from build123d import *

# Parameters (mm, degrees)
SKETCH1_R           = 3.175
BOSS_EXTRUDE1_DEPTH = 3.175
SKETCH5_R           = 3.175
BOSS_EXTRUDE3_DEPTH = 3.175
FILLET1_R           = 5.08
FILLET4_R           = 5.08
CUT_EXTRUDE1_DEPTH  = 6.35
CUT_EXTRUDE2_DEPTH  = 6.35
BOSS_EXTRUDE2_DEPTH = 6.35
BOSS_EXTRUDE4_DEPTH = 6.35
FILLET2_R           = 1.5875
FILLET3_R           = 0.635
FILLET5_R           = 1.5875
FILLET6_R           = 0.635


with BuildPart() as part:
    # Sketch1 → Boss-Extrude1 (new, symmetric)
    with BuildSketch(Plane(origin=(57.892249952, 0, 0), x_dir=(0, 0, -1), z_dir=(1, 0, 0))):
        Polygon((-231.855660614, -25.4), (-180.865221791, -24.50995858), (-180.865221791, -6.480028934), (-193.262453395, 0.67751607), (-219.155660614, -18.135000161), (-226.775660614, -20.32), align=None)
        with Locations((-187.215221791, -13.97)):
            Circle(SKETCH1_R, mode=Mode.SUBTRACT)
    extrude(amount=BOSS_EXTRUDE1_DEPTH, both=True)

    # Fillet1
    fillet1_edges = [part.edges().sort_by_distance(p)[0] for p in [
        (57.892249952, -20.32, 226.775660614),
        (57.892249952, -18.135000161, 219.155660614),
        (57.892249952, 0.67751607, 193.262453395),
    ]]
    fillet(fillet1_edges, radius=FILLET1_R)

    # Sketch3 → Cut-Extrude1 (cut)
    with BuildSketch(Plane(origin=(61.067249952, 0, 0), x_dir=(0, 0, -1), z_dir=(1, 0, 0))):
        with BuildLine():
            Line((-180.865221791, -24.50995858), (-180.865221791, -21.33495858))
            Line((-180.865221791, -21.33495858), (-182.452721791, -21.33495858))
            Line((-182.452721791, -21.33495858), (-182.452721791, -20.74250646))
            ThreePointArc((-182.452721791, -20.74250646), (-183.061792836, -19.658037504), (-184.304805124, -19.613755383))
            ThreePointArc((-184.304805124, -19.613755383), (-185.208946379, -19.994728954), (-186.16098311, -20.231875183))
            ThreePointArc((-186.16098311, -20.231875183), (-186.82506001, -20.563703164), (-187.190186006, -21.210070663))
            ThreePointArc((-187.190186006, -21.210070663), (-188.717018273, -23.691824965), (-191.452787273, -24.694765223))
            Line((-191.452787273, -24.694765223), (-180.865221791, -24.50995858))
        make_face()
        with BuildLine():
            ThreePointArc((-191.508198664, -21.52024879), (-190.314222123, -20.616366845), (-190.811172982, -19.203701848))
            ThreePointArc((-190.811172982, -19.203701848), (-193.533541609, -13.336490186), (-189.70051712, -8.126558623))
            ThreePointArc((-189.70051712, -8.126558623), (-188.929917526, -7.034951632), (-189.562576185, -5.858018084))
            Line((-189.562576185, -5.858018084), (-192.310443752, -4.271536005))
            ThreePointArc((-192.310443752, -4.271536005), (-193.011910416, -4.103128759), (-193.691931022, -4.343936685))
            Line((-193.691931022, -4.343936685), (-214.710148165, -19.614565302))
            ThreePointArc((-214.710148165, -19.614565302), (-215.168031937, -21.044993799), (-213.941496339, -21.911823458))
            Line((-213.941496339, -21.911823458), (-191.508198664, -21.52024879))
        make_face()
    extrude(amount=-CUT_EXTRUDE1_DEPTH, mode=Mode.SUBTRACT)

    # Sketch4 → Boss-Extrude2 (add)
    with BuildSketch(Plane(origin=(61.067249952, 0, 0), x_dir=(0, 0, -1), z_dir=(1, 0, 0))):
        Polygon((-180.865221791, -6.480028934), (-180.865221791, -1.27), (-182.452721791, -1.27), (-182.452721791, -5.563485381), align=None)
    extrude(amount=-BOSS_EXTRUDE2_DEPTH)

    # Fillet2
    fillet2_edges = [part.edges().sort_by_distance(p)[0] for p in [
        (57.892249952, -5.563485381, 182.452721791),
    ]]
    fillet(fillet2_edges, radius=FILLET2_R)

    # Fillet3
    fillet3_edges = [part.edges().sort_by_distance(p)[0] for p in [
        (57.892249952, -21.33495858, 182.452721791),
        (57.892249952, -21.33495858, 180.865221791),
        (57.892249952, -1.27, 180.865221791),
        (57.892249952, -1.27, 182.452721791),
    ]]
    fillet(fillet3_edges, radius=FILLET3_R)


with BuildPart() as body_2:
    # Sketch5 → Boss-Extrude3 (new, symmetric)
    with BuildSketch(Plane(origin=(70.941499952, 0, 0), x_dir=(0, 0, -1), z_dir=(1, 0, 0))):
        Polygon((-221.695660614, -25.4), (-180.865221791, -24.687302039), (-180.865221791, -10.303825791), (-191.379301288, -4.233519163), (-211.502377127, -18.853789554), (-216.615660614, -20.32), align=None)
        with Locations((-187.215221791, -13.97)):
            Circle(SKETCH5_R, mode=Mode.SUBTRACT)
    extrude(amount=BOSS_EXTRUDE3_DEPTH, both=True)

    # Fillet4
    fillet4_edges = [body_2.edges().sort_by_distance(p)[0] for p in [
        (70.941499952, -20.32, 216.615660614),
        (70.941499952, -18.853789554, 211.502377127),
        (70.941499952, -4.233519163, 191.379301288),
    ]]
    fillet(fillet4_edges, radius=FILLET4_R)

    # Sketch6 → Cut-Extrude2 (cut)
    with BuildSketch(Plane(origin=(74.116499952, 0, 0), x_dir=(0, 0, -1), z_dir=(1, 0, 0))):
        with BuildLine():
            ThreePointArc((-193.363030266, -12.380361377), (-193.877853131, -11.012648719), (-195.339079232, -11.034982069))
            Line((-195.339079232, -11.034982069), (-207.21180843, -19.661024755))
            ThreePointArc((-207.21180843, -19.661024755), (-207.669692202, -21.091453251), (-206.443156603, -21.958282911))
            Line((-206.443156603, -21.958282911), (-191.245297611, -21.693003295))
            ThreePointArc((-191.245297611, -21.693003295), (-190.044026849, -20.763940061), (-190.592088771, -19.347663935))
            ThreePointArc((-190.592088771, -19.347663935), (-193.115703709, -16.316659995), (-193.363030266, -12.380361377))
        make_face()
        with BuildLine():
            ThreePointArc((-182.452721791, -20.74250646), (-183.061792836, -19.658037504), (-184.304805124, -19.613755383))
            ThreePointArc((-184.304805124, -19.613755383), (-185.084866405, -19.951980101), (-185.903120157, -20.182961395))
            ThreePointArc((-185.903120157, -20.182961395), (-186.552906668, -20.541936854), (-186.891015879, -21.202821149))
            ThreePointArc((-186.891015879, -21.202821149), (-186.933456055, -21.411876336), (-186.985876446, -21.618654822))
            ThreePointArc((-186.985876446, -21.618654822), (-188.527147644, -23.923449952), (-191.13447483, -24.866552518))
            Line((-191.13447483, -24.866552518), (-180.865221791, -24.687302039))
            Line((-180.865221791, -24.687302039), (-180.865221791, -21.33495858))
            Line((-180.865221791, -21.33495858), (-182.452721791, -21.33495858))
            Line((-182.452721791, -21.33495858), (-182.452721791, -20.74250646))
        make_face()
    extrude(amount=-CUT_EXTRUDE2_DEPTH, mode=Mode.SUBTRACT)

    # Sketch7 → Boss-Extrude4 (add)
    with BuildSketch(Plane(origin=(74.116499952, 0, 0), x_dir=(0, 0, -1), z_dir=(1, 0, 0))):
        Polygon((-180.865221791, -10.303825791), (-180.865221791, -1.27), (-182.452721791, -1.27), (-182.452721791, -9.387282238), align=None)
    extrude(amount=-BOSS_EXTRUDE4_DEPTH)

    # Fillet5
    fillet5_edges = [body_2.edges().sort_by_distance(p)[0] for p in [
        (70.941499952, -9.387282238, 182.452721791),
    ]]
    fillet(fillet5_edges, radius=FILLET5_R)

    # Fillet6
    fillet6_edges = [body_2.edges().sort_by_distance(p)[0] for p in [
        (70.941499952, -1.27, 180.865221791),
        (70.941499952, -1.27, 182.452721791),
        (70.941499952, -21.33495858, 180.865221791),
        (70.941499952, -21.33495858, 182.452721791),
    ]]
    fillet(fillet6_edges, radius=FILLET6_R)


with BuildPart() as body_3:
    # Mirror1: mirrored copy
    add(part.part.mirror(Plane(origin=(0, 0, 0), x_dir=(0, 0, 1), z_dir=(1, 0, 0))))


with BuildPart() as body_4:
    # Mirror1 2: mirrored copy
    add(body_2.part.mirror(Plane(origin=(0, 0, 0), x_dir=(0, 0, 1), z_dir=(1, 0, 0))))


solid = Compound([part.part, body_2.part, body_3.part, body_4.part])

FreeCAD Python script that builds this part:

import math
import FreeCAD as App
import Part
import Sketcher
Q = App.Units.Quantity


def edges_at(feature, points):
    """Names of the edges that pass closest to the given points."""
    edges = feature.Shape.Edges
    near = lambda p: min(range(len(edges)), key=lambda i: edges[i].distToShape(Part.Vertex(*p))[0])
    return sorted({f"Edge{near(p) + 1}" for p in points})


def add_polygon(sketch, points):
    """Adds a closed chain of lines whose ends are joined by coincident constraints."""
    first, n = sketch.GeometryCount, len(points)
    for a, b in zip(points, points[1:] + points[:1]):
        sketch.addGeometry(Part.LineSegment(App.Vector(*a, 0), App.Vector(*b, 0)), False)
    for i in range(n):
        sketch.addConstraint(Sketcher.Constraint("Coincident", first + i, 2, first + (i + 1) % n, 1))

doc = App.newDocument("Part")
body = doc.addObject("PartDesign::Body", "Body")

# Sketch on YZ plane
sketch1 = body.newObject("Sketcher::SketchObject", "Sketch")
sketch1.AttachmentSupport = (doc.getObject("YZ_Plane"), [""])
sketch1.MapMode = "FlatFace"
sketch1.AttachmentOffset = App.Placement(App.Vector(0, 0, 57.89225), App.Rotation())
add_polygon(sketch1, [(-25.4, 231.9), (-24.5, 180.9), (-6.5, 180.9), (0.7, 193.3), (-18.1, 219.2), (-20.3, 226.8)])  # lines 0-5
sketch1.addGeometry(Part.Circle(App.Vector(-14, 187.2, 0), App.Vector(0, 0, 1), 3.2), False)  # 6
sketch1.addConstraint([
    Sketcher.Constraint("Horizontal", 1),
    Sketcher.Constraint("Diameter", 6, Q("0.25 in")),
    Sketcher.Constraint("DistanceX", 5, 2, -1, 1, Q("1 in")),
    Sketcher.Constraint("Angle", 0, Q("-89 deg")),
    Sketcher.Constraint("Angle", 2, Q("60 deg")),
    Sketcher.Constraint("Angle", 3, Q("126 deg")),
    Sketcher.Constraint("Angle", 4, Q("106 deg")),
    Sketcher.Constraint("Angle", 5, Q("135 deg")),
    Sketcher.Constraint("DistanceX", 4, 2, -1, 1, Q("0.8 in")),
    Sketcher.Constraint("DistanceY", 3, 2, 4, 2, Q("0.3 in")),
    Sketcher.Constraint("DistanceX", 6, 3, -1, 1, Q("0.55 in")),
    Sketcher.Constraint("DistanceY", 0, 2, 6, 3, Q("0.25 in")),
    Sketcher.Constraint("DistanceX", 1, 1, 1, 2, 18.02993),
    Sketcher.Constraint("Distance", 2, 14.31509),
    Sketcher.Constraint("DistanceY", -1, 1, 6, 3, 187.215222),
])
pad1 = body.newObject("PartDesign::Pad", "Pad")
pad1.Profile = sketch1
pad1.Length = Q("0.25 in")
pad1.Midplane = True
doc.recompute()

fillet = body.newObject("PartDesign::Fillet", "Fillet")
fillet.Base = (pad1, edges_at(pad1, [(57.892, -20.32, 226.776), (57.892, -18.135, 219.156), (57.892, 0.678, 193.262)]))
fillet.Radius = Q("0.2 in")

# Sketch on YZ plane
sketch2 = body.newObject("Sketcher::SketchObject", "Sketch001")
sketch2.AttachmentSupport = (doc.getObject("YZ_Plane"), [""])
sketch2.MapMode = "FlatFace"
sketch2.AttachmentOffset = App.Placement(App.Vector(0, 0, 61.06725), App.Rotation())
sketch2.addGeometry([
    Part.LineSegment(App.Vector(-24.5, 180.9, 0), App.Vector(-21.3, 180.9, 0)),  # 0
    Part.LineSegment(App.Vector(-21.3, 180.9, 0), App.Vector(-21.3, 182.5, 0)),  # 1
    Part.LineSegment(App.Vector(-21.3, 182.5, 0), App.Vector(-20.7, 182.5, 0)),  # 2
    Part.ArcOfCircle(Part.Circle(App.Vector(-20.7, 183.7, 0), App.Vector(0, 0, 1), 1.3), math.radians(-90), math.radians(27)),  # 3
    Part.ArcOfCircle(Part.Circle(App.Vector(-14, 187.2, 0), App.Vector(0, 0, 1), 6.4), math.radians(-170.44), math.radians(-152.72)),  # 4
    Part.ArcOfCircle(Part.Circle(App.Vector(-21.5, 186, 0), App.Vector(0, 0, 1), 1.3), math.radians(10), math.radians(78)),  # 5
    Part.ArcOfCircle(Part.Circle(App.Vector(-20.3, 191.5, 0), App.Vector(0, 0, 1), 4.4), math.radians(-179), math.radians(-102)),  # 6
    Part.LineSegment(App.Vector(-24.7, 191.5, 0), App.Vector(-24.5, 180.9, 0)),  # 7
    Part.ArcOfCircle(Part.Circle(App.Vector(-20.3, 191.5, 0), App.Vector(0, 0, 1), 1.3), math.radians(-179), math.radians(-34)),  # 8
    Part.ArcOfCircle(Part.Circle(App.Vector(-14, 187.2, 0), App.Vector(0, 0, 1), 6.3), math.radians(23), math.radians(146)),  # 9
    Part.ArcOfCircle(Part.Circle(App.Vector(-7, 190.2, 0), App.Vector(0, 0, 1), 1.3), math.radians(-157), math.radians(-30)),  # 10
    Part.LineSegment(App.Vector(-5.9, 189.6, 0), App.Vector(-4.3, 192.3, 0)),  # 11
    Part.ArcOfCircle(Part.Circle(App.Vector(-5.4, 192.9, 0), App.Vector(0, 0, 1), 1.3), math.radians(-30), math.radians(36)),  # 12
    Part.LineSegment(App.Vector(-4.3, 193.7, 0), App.Vector(-19.6, 214.7, 0)),  # 13
    Part.ArcOfCircle(Part.Circle(App.Vector(-20.6, 214, 0), App.Vector(0, 0, 1), 1.3), math.radians(36), math.radians(181)),  # 14
    Part.LineSegment(App.Vector(-21.9, 213.9, 0), App.Vector(-21.5, 191.5, 0)),  # 15
], False)
sketch2.addConstraint([
    Sketcher.Constraint("Coincident", 0, 2, 1, 1),
    Sketcher.Constraint("Coincident", 1, 2, 2, 1),
    Sketcher.Constraint("Tangent", 2, 2, 3, 1),
    Sketcher.Constraint("Tangent", 3, 2, 4, 2),
    Sketcher.Constraint("Tangent", 4, 1, 5, 1),
    Sketcher.Constraint("Tangent", 5, 2, 6, 2),
    Sketcher.Constraint("Tangent", 6, 1, 7, 1),
    Sketcher.Constraint("Coincident", 7, 2, 0, 1),
    Sketcher.Constraint("Tangent", 8, 2, 9, 2),
    Sketcher.Constraint("Tangent", 9, 1, 10, 1),
    Sketcher.Constraint("Tangent", 10, 2, 11, 1),
    Sketcher.Constraint("Tangent", 11, 2, 12, 1),
    Sketcher.Constraint("Tangent", 12, 2, 13, 1),
    Sketcher.Constraint("Tangent", 13, 2, 14, 1),
    Sketcher.Constraint("Tangent", 14, 2, 15, 1),
    Sketcher.Constraint("Tangent", 15, 2, 8, 1),
    Sketcher.Constraint("Horizontal", 0),
    Sketcher.Constraint("Vertical", 1),
    Sketcher.Constraint("Horizontal", 2),
    Sketcher.Constraint("Coincident", 8, 3, 6, 3),
    Sketcher.Constraint("Coincident", 9, 3, 4, 3),
    Sketcher.Constraint("Equal", 3, 5),
    Sketcher.Constraint("Equal", 5, 8),
    Sketcher.Constraint("Equal", 4, 9),
    Sketcher.Constraint("Equal", 8, 10),
    Sketcher.Constraint("Equal", 10, 12),
    Sketcher.Constraint("Equal", 12, 14),
    Sketcher.Constraint("Parallel", 7, 15),
    Sketcher.Constraint("Radius", 3, Q("0.05 in")),
    Sketcher.Constraint("Radius", 4, Q("0.25 in")),
    Sketcher.Constraint("Angle", 7, Q("-89 deg")),
    Sketcher.Constraint("Angle", 11, Q("60 deg")),
    Sketcher.Constraint("Angle", 13, Q("126 deg")),
    Sketcher.Constraint("Radius", 6, Q("0.175 in")),
    Sketcher.Constraint("DistanceX", 0, 1, 0, 2, Q("0.125 in")),
    Sketcher.Constraint("DistanceY", 1, 1, 1, 2, Q("0.0625 in")),
    Sketcher.Constraint("DistanceX", 4, 3, -1, 1, Q("0.55 in")),
    Sketcher.Constraint("DistanceY", 0, 2, 9, 3, Q("0.25 in")),
    Sketcher.Constraint("DistanceX", 8, 2, -1, 1, 19.203702),
    Sketcher.Constraint("DistanceY", -1, 1, 15, 2, 191.508199),
    Sketcher.Constraint("DistanceX", 6, 1, 13, 2, 5.0802),
    Sketcher.Constraint("DistanceX", 10, 3, -1, 1, 6.95787),
])
pocket1 = body.newObject("PartDesign::Pocket", "Pocket")
pocket1.Profile = sketch2
pocket1.Length = Q("0.25 in")

# Sketch on YZ plane
sketch3 = body.newObject("Sketcher::SketchObject", "Sketch002")
sketch3.AttachmentSupport = (doc.getObject("YZ_Plane"), [""])
sketch3.MapMode = "FlatFace"
sketch3.AttachmentOffset = App.Placement(App.Vector(0, 0, 61.06725), App.Rotation())
add_polygon(sketch3, [(-6.5, 180.9), (-1.3, 180.9), (-1.3, 182.5), (-5.6, 182.5)])  # lines 0-3
sketch3.addConstraint([
    Sketcher.Constraint("Horizontal", 0),
    Sketcher.Constraint("Vertical", 1),
    Sketcher.Constraint("Horizontal", 2),
    Sketcher.Constraint("Angle", 3, Q("-120 deg")),
    Sketcher.Constraint("DistanceY", 1, 1, 1, 2, Q("0.0625 in")),
    Sketcher.Constraint("DistanceX", 0, 2, -1, 1, Q("0.05 in")),
    Sketcher.Constraint("DistanceX", 0, 1, 0, 2, 5.210029),
    Sketcher.Constraint("DistanceY", -1, 1, 0, 2, 180.865222),
])
pad2 = body.newObject("PartDesign::Pad", "Pad001")
pad2.Profile = sketch3
pad2.Length = Q("0.25 in")
pad2.Reversed = True
doc.recompute()

fillet2 = body.newObject("PartDesign::Fillet", "Fillet001")
fillet2.Base = (pad2, edges_at(pad2, [(57.892, -5.563, 182.453)]))
fillet2.Radius = Q("0.0625 in")
doc.recompute()

fillet3 = body.newObject("PartDesign::Fillet", "Fillet002")
fillet3.Base = (fillet2, edges_at(fillet2, [
    (57.892, -21.335, 182.453),
    (57.892, -21.335, 180.865),
    (57.892, -1.27, 180.865),
    (57.892, -1.27, 182.453),
]))
fillet3.Radius = Q("0.025 in")
body2 = doc.addObject("PartDesign::Body", "Body001")

# Sketch on YZ plane
sketch4 = body2.newObject("Sketcher::SketchObject", "Sketch003")
sketch4.AttachmentSupport = (doc.getObject("YZ_Plane001"), [""])
sketch4.MapMode = "FlatFace"
sketch4.AttachmentOffset = App.Placement(App.Vector(0, 0, 70.9415), App.Rotation())
add_polygon(sketch4, [(-25.4, 221.7), (-24.7, 180.9), (-10.3, 180.9), (-4.2, 191.4), (-18.9, 211.5), (-20.3, 216.6)])  # lines 0-5
sketch4.addGeometry(Part.Circle(App.Vector(-14, 187.2, 0), App.Vector(0, 0, 1), 3.2), False)  # 6
sketch4.addConstraint([
    Sketcher.Constraint("Horizontal", 1),
    Sketcher.Constraint("Diameter", 6, Q("0.25 in")),
    Sketcher.Constraint("DistanceX", 5, 2, -1, 1, Q("1 in")),
    Sketcher.Constraint("Angle", 0, Q("-89 deg")),
    Sketcher.Constraint("Angle", 2, Q("60 deg")),
    Sketcher.Constraint("Angle", 3, Q("126 deg")),
    Sketcher.Constraint("Angle", 4, Q("106 deg")),
    Sketcher.Constraint("Angle", 5, Q("135 deg")),
    Sketcher.Constraint("DistanceX", 4, 2, -1, 1, Q("0.8 in")),
    Sketcher.Constraint("DistanceX", 6, 3, -1, 1, Q("0.55 in")),
    Sketcher.Constraint("DistanceY", 0, 2, 6, 3, Q("0.25 in")),
    Sketcher.Constraint("DistanceY", -1, 1, 2, 2, 191.379301),
    Sketcher.Constraint("Distance", 0, 40.836658),
    Sketcher.Constraint("Distance", 3, 24.87349),
    Sketcher.Constraint("DistanceX", 1, 1, 1, 2, 14.383476),
])
pad3 = body2.newObject("PartDesign::Pad", "Pad002")
pad3.Profile = sketch4
pad3.Length = Q("0.25 in")
pad3.Midplane = True
doc.recompute()

fillet4 = body2.newObject("PartDesign::Fillet", "Fillet003")
fillet4.Base = (pad3, edges_at(pad3, [(70.941, -20.32, 216.616), (70.941, -18.854, 211.502), (70.941, -4.234, 191.379)]))
fillet4.Radius = Q("0.2 in")

# Sketch on YZ plane
sketch5 = body2.newObject("Sketcher::SketchObject", "Sketch004")
sketch5.AttachmentSupport = (doc.getObject("YZ_Plane001"), [""])
sketch5.MapMode = "FlatFace"
sketch5.AttachmentOffset = App.Placement(App.Vector(0, 0, 74.1165), App.Rotation())
sketch5.addGeometry([
    Part.ArcOfCircle(Part.Circle(App.Vector(-12.06, 194.59, 0), App.Vector(0, 0, 1), 1.27), math.radians(-104), math.radians(36)),  # 0
    Part.LineSegment(App.Vector(-11.03, 195.34, 0), App.Vector(-19.66, 207.21, 0)),  # 1
    Part.ArcOfCircle(Part.Circle(App.Vector(-20.69, 206.47, 0), App.Vector(0, 0, 1), 1.27), math.radians(36), math.radians(181)),  # 2
    Part.LineSegment(App.Vector(-21.96, 206.44, 0), App.Vector(-21.69, 191.25, 0)),  # 3
    Part.ArcOfCircle(Part.Circle(App.Vector(-20.42, 191.27, 0), App.Vector(0, 0, 1), 1.27), math.radians(-179), math.radians(-32)),  # 4
    Part.ArcOfCircle(Part.Circle(App.Vector(-13.97, 187.22, 0), App.Vector(0, 0, 1), 6.35), math.radians(76), math.radians(148)),  # 5
    Part.ArcOfCircle(Part.Circle(App.Vector(-20.74, 183.72, 0), App.Vector(0, 0, 1), 1.27), math.radians(-90), math.radians(27)),  # 6
    Part.ArcOfCircle(Part.Circle(App.Vector(-13.97, 187.22, 0), App.Vector(0, 0, 1), 6.35), math.radians(-168.08), math.radians(-152.72)),  # 7
    Part.ArcOfCircle(Part.Circle(App.Vector(-21.43, 185.64, 0), App.Vector(0, 0, 1), 1.27), math.radians(12), math.radians(80)),  # 8
    Part.ArcOfCircle(Part.Circle(App.Vector(-20.42, 191.27, 0), App.Vector(0, 0, 1), 4.45), math.radians(-105.6), math.radians(-100.1)),  # 9
    Part.ArcOfCircle(Part.Circle(App.Vector(-20.42, 191.27, 0), App.Vector(0, 0, 1), 4.45), math.radians(-178), math.radians(-106)),  # 10
    Part.LineSegment(App.Vector(-24.87, 191.13, 0), App.Vector(-24.69, 180.87, 0)),  # 11
    Part.LineSegment(App.Vector(-24.69, 180.87, 0), App.Vector(-21.33, 180.87, 0)),  # 12
    Part.LineSegment(App.Vector(-21.33, 180.87, 0), App.Vector(-21.33, 182.45, 0)),  # 13
    Part.LineSegment(App.Vector(-21.33, 182.45, 0), App.Vector(-20.74, 182.45, 0)),  # 14
], False)
sketch5.addConstraint([
    Sketcher.Constraint("Tangent", 0, 2, 1, 1),
    Sketcher.Constraint("Tangent", 1, 2, 2, 1),
    Sketcher.Constraint("Tangent", 2, 2, 3, 1),
    Sketcher.Constraint("Tangent", 3, 2, 4, 1),
    Sketcher.Constraint("Tangent", 4, 2, 5, 2),
    Sketcher.Constraint("Tangent", 5, 1, 0, 1),
    Sketcher.Constraint("Tangent", 6, 2, 7, 2),
    Sketcher.Constraint("Tangent", 7, 1, 8, 1),
    Sketcher.Constraint("Tangent", 8, 2, 9, 2),
    Sketcher.Constraint("Tangent", 9, 1, 10, 2),
    Sketcher.Constraint("Coincident", 10, 1, 11, 1),
    Sketcher.Constraint("Coincident", 11, 2, 12, 1),
    Sketcher.Constraint("Coincident", 12, 2, 13, 1),
    Sketcher.Constraint("Coincident", 13, 2, 14, 1),
    Sketcher.Constraint("Tangent", 14, 2, 6, 1),
    Sketcher.Constraint("Horizontal", 12),
    Sketcher.Constraint("Vertical", 13),
    Sketcher.Constraint("Horizontal", 14),
    Sketcher.Constraint("Coincident", 7, 3, 5, 3),
    Sketcher.Constraint("Coincident", 9, 3, 4, 3),
    Sketcher.Constraint("Equal", 0, 2),
    Sketcher.Constraint("Equal", 2, 4),
    Sketcher.Constraint("Equal", 4, 6),
    Sketcher.Constraint("Equal", 5, 7),
    Sketcher.Constraint("Equal", 6, 8),
    Sketcher.Constraint("Equal", 9, 10),
    Sketcher.Constraint("Parallel", 3, 11),
    Sketcher.Constraint("Radius", 0, Q("0.05 in")),
    Sketcher.Constraint("Radius", 5, Q("0.25 in")),
    Sketcher.Constraint("Angle", 1, Q("126 deg")),
    Sketcher.Constraint("Angle", 3, Q("-89 deg")),
    Sketcher.Constraint("DistanceY", 13, 1, 13, 2, Q("0.0625 in")),
    Sketcher.Constraint("DistanceX", 5, 3, -1, 1, Q("0.55 in")),
    Sketcher.Constraint("Radius", 9, 4.445345),
    Sketcher.Constraint("DistanceY", 6, 3, 5, 3, Q("0.1375 in")),
    Sketcher.Constraint("DistanceY", 4, 3, 0, 2, Q("0.1602999 in")),
    Sketcher.Constraint("Distance", 1, 14.6755),
    Sketcher.Constraint("DistanceY", -1, 1, 8, 3, 185.6407),
    Sketcher.Constraint("DistanceX", 9, 1, 8, 3, 0.193101),
    Sketcher.Constraint("DistanceY", 9, 1, 10, 1, 4.148598),
    Sketcher.Constraint("DistanceX", 12, 1, 12, 2, 3.352343),
])
pocket2 = body2.newObject("PartDesign::Pocket", "Pocket001")
pocket2.Profile = sketch5
pocket2.Length = Q("0.25 in")

# Sketch on YZ plane
sketch6 = body2.newObject("Sketcher::SketchObject", "Sketch005")
sketch6.AttachmentSupport = (doc.getObject("YZ_Plane001"), [""])
sketch6.MapMode = "FlatFace"
sketch6.AttachmentOffset = App.Placement(App.Vector(0, 0, 74.1165), App.Rotation())
add_polygon(sketch6, [(-10.3, 180.9), (-1.3, 180.9), (-1.3, 182.5), (-9.4, 182.5)])  # lines 0-3
sketch6.addConstraint([
    Sketcher.Constraint("Horizontal", 0),
    Sketcher.Constraint("Vertical", 1),
    Sketcher.Constraint("Horizontal", 2),
    Sketcher.Constraint("Angle", 3, Q("-120 deg")),
    Sketcher.Constraint("DistanceY", 1, 1, 1, 2, Q("0.0625 in")),
    Sketcher.Constraint("DistanceX", 0, 2, -1, 1, Q("0.05 in")),
    Sketcher.Constraint("DistanceX", 0, 1, 0, 2, 9.033826),
    Sketcher.Constraint("DistanceY", -1, 1, 0, 2, 180.865222),
])
pad4 = body2.newObject("PartDesign::Pad", "Pad003")
pad4.Profile = sketch6
pad4.Length = Q("0.25 in")
pad4.Reversed = True
doc.recompute()

fillet5 = body2.newObject("PartDesign::Fillet", "Fillet004")
fillet5.Base = (pad4, edges_at(pad4, [(70.941, -9.387, 182.453)]))
fillet5.Radius = Q("0.0625 in")
doc.recompute()

fillet6 = body2.newObject("PartDesign::Fillet", "Fillet005")
fillet6.Base = (fillet5, edges_at(fillet5, [
    (70.941, -1.27, 180.865),
    (70.941, -1.27, 182.453),
    (70.941, -21.335, 180.865),
    (70.941, -21.335, 182.453),
]))
fillet6.Radius = Q("0.025 in")
body3 = doc.addObject("PartDesign::Body", "Body002")
doc.recompute()

mirroring = doc.addObject("Part::Mirroring", "Mirroring")
mirroring.Source = body
mirroring.Base = App.Vector(0, 0, 0)
mirroring.Normal = App.Vector(1, 0, 0)
body3.BaseFeature = mirroring
doc.recompute()
body4 = doc.addObject("PartDesign::Body", "Body003")
doc.recompute()

mirroring2 = doc.addObject("Part::Mirroring", "Mirroring001")
mirroring2.Source = body2
mirroring2.Base = App.Vector(0, 0, 0)
mirroring2.Normal = App.Vector(1, 0, 0)
body4.BaseFeature = mirroring2
doc.recompute()
mirroring.Visibility = False
mirroring2.Visibility = False

doc.recompute()
